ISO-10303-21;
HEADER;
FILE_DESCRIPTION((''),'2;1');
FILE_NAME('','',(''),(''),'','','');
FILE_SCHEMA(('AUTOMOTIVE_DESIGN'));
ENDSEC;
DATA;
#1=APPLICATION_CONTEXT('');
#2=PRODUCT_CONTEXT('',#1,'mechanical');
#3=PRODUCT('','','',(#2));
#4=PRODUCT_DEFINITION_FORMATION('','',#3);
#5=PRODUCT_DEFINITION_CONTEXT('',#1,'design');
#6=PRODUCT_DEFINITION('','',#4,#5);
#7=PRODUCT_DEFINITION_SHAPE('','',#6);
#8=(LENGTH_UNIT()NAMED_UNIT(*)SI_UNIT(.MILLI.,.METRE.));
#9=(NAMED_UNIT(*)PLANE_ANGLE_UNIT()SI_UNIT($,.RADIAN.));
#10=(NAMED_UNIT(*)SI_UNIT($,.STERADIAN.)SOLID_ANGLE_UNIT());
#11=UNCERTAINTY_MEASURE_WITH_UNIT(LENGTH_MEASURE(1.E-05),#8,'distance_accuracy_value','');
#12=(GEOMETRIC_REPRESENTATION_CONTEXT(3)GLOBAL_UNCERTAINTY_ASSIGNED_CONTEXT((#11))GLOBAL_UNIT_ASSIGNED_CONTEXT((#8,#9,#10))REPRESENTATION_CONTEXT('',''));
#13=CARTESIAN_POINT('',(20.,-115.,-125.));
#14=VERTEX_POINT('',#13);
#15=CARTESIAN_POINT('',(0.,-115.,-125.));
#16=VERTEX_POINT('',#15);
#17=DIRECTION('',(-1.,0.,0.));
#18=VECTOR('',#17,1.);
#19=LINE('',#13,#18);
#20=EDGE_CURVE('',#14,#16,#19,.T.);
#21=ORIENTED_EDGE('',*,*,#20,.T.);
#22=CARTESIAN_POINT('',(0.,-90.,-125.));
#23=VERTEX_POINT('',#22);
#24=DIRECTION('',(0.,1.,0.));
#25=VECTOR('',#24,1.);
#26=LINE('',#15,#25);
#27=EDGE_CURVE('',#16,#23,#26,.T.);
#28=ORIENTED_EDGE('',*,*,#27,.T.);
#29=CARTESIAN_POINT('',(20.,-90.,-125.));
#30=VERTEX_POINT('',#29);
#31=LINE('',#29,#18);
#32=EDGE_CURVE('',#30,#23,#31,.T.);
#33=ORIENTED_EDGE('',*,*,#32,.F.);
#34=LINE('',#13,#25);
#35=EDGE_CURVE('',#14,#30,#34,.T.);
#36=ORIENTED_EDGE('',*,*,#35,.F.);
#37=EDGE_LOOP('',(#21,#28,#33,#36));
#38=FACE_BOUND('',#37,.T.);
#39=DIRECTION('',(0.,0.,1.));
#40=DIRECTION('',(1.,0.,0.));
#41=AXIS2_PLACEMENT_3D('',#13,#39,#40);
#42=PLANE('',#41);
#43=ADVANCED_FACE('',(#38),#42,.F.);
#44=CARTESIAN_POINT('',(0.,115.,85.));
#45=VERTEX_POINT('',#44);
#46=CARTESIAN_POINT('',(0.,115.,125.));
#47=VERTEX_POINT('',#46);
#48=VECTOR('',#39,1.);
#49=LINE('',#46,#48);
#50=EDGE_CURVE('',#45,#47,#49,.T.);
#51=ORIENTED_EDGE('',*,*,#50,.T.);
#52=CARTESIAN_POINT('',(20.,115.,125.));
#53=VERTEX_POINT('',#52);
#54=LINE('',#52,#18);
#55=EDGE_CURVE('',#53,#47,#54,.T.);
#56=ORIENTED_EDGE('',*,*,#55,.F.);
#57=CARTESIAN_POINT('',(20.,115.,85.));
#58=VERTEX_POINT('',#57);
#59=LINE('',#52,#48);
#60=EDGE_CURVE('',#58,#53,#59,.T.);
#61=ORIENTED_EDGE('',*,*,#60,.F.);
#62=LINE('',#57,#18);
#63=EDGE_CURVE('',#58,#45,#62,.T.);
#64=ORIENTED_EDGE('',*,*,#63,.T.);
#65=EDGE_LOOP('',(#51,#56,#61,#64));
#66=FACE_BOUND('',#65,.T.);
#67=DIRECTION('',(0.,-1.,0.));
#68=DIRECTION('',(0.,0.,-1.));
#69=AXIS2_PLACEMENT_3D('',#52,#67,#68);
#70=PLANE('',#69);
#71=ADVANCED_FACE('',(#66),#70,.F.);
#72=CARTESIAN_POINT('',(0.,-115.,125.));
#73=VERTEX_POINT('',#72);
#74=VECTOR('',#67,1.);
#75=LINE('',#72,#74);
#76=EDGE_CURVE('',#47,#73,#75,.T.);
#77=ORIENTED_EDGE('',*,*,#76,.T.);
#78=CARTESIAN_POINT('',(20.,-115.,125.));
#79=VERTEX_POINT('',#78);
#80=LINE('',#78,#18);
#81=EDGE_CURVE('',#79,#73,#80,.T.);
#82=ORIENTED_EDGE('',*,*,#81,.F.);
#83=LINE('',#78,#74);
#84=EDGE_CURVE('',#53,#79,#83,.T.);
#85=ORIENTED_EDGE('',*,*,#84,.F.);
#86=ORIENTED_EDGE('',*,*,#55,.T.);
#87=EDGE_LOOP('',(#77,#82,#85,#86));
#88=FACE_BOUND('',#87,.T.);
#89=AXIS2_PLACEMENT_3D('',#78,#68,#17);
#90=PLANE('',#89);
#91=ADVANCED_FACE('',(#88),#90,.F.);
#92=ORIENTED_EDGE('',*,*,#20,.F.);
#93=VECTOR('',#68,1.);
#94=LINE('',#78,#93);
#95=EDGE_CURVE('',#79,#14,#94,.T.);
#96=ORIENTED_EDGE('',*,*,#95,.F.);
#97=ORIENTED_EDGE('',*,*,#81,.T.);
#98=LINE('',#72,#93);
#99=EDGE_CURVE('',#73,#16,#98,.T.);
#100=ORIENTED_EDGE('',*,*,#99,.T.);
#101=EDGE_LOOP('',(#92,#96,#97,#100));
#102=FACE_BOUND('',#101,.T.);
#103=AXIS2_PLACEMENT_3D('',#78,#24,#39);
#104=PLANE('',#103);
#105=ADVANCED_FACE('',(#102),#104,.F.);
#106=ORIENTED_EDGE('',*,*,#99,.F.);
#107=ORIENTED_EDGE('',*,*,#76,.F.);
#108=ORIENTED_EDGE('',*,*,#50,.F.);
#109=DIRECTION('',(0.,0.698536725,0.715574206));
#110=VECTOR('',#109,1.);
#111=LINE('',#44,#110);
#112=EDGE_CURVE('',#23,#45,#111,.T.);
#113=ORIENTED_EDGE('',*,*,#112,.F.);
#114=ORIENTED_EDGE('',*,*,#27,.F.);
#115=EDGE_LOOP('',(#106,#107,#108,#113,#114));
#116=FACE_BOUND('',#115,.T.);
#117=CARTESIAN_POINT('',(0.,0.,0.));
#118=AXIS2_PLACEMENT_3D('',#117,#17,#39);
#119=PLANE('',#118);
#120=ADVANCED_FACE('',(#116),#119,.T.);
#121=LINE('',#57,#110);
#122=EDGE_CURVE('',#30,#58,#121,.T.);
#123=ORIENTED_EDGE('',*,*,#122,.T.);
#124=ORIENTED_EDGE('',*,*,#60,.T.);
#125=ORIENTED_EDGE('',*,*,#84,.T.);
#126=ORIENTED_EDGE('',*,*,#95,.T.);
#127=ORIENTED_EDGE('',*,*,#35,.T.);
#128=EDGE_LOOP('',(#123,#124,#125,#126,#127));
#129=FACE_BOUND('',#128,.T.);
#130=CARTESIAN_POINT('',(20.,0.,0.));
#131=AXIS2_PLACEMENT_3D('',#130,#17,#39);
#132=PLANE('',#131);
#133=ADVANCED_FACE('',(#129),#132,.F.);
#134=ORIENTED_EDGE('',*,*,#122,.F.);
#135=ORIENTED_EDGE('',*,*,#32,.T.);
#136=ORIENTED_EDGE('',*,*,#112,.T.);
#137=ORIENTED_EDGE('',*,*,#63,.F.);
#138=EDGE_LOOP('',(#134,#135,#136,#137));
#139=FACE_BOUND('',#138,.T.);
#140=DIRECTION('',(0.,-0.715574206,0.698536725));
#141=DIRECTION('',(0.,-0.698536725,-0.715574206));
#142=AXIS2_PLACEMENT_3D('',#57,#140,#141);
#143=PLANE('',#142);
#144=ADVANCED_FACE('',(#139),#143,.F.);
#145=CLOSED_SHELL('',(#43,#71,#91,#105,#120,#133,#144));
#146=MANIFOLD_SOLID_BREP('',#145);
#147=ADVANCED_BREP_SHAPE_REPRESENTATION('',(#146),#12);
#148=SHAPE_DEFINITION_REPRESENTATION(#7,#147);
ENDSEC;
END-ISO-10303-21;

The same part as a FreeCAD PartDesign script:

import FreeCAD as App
import Part
import Sketcher

V = App.Vector


def add_polygon(sketch, points):
    """Adds a closed chain of lines whose ends are joined by coincident constraints."""
    first, n = sketch.GeometryCount, len(points)
    for a, b in zip(points, points[1:] + points[:1]):
        sketch.addGeometry(Part.LineSegment(App.Vector(*a, 0), App.Vector(*b, 0)), False)
    for i in range(n):
        sketch.addConstraint(Sketcher.Constraint("Coincident", first + i, 2, first + (i + 1) % n, 1))

doc = App.newDocument("Part")
params = doc.addObject("Spreadsheet::Sheet", "Params")
for row, (alias, value) in enumerate([
    ("sketch1_width", "230 mm"),
    ("sketch1_width2", "25 mm"),
    ("sketch1_height", "40 mm"),
    ("sketch1_height2", "250 mm"),
    ("pad1_length", "20 mm"),
], start=1):
    params.set(f"A{row}", alias)
    params.set(f"B{row}", "=" + value)
    params.setAlias(f"B{row}", alias)

body = doc.addObject("PartDesign::Body", "Body")

# Sketch on YZ plane
sketch1 = doc.addObject("Sketcher::SketchObject", "Sketch")
body.addObject(sketch1)
sketch1.AttachmentSupport = (doc.YZ_Plane, [""])
sketch1.MapMode = "FlatFace"
add_polygon(sketch1, [(-90, -125), (115, 85), (115, 125), (-115, 125), (-115, -125)])  # lines 0-4
sketch1.addConstraint([
    Sketcher.Constraint("Vertical", 1),
    Sketcher.Constraint("Horizontal", 2),
    Sketcher.Constraint("Vertical", 3),
    Sketcher.Constraint("Horizontal", 4),
    Sketcher.Constraint("Symmetric", 1, 2, 3, 2, -1, 1),
    Sketcher.Constraint("DistanceX", 2, 2, 2, 1, 230.0),
    Sketcher.Constraint("DistanceX", 4, 1, 4, 2, 25.0),
    Sketcher.Constraint("DistanceY", 1, 1, 1, 2, 40.0),
    Sketcher.Constraint("DistanceY", 3, 2, 3, 1, 250.0),
])
sketch1.setExpression("Constraints[10]", "Params.sketch1_width")
sketch1.setExpression("Constraints[11]", "Params.sketch1_width2")
sketch1.setExpression("Constraints[12]", "Params.sketch1_height")
sketch1.setExpression("Constraints[13]", "Params.sketch1_height2")
pad1 = doc.addObject("PartDesign::Pad", "Pad")
body.addObject(pad1)
pad1.Profile = sketch1
pad1.setExpression("Length", "Params.pad1_length")

doc.recompute()
